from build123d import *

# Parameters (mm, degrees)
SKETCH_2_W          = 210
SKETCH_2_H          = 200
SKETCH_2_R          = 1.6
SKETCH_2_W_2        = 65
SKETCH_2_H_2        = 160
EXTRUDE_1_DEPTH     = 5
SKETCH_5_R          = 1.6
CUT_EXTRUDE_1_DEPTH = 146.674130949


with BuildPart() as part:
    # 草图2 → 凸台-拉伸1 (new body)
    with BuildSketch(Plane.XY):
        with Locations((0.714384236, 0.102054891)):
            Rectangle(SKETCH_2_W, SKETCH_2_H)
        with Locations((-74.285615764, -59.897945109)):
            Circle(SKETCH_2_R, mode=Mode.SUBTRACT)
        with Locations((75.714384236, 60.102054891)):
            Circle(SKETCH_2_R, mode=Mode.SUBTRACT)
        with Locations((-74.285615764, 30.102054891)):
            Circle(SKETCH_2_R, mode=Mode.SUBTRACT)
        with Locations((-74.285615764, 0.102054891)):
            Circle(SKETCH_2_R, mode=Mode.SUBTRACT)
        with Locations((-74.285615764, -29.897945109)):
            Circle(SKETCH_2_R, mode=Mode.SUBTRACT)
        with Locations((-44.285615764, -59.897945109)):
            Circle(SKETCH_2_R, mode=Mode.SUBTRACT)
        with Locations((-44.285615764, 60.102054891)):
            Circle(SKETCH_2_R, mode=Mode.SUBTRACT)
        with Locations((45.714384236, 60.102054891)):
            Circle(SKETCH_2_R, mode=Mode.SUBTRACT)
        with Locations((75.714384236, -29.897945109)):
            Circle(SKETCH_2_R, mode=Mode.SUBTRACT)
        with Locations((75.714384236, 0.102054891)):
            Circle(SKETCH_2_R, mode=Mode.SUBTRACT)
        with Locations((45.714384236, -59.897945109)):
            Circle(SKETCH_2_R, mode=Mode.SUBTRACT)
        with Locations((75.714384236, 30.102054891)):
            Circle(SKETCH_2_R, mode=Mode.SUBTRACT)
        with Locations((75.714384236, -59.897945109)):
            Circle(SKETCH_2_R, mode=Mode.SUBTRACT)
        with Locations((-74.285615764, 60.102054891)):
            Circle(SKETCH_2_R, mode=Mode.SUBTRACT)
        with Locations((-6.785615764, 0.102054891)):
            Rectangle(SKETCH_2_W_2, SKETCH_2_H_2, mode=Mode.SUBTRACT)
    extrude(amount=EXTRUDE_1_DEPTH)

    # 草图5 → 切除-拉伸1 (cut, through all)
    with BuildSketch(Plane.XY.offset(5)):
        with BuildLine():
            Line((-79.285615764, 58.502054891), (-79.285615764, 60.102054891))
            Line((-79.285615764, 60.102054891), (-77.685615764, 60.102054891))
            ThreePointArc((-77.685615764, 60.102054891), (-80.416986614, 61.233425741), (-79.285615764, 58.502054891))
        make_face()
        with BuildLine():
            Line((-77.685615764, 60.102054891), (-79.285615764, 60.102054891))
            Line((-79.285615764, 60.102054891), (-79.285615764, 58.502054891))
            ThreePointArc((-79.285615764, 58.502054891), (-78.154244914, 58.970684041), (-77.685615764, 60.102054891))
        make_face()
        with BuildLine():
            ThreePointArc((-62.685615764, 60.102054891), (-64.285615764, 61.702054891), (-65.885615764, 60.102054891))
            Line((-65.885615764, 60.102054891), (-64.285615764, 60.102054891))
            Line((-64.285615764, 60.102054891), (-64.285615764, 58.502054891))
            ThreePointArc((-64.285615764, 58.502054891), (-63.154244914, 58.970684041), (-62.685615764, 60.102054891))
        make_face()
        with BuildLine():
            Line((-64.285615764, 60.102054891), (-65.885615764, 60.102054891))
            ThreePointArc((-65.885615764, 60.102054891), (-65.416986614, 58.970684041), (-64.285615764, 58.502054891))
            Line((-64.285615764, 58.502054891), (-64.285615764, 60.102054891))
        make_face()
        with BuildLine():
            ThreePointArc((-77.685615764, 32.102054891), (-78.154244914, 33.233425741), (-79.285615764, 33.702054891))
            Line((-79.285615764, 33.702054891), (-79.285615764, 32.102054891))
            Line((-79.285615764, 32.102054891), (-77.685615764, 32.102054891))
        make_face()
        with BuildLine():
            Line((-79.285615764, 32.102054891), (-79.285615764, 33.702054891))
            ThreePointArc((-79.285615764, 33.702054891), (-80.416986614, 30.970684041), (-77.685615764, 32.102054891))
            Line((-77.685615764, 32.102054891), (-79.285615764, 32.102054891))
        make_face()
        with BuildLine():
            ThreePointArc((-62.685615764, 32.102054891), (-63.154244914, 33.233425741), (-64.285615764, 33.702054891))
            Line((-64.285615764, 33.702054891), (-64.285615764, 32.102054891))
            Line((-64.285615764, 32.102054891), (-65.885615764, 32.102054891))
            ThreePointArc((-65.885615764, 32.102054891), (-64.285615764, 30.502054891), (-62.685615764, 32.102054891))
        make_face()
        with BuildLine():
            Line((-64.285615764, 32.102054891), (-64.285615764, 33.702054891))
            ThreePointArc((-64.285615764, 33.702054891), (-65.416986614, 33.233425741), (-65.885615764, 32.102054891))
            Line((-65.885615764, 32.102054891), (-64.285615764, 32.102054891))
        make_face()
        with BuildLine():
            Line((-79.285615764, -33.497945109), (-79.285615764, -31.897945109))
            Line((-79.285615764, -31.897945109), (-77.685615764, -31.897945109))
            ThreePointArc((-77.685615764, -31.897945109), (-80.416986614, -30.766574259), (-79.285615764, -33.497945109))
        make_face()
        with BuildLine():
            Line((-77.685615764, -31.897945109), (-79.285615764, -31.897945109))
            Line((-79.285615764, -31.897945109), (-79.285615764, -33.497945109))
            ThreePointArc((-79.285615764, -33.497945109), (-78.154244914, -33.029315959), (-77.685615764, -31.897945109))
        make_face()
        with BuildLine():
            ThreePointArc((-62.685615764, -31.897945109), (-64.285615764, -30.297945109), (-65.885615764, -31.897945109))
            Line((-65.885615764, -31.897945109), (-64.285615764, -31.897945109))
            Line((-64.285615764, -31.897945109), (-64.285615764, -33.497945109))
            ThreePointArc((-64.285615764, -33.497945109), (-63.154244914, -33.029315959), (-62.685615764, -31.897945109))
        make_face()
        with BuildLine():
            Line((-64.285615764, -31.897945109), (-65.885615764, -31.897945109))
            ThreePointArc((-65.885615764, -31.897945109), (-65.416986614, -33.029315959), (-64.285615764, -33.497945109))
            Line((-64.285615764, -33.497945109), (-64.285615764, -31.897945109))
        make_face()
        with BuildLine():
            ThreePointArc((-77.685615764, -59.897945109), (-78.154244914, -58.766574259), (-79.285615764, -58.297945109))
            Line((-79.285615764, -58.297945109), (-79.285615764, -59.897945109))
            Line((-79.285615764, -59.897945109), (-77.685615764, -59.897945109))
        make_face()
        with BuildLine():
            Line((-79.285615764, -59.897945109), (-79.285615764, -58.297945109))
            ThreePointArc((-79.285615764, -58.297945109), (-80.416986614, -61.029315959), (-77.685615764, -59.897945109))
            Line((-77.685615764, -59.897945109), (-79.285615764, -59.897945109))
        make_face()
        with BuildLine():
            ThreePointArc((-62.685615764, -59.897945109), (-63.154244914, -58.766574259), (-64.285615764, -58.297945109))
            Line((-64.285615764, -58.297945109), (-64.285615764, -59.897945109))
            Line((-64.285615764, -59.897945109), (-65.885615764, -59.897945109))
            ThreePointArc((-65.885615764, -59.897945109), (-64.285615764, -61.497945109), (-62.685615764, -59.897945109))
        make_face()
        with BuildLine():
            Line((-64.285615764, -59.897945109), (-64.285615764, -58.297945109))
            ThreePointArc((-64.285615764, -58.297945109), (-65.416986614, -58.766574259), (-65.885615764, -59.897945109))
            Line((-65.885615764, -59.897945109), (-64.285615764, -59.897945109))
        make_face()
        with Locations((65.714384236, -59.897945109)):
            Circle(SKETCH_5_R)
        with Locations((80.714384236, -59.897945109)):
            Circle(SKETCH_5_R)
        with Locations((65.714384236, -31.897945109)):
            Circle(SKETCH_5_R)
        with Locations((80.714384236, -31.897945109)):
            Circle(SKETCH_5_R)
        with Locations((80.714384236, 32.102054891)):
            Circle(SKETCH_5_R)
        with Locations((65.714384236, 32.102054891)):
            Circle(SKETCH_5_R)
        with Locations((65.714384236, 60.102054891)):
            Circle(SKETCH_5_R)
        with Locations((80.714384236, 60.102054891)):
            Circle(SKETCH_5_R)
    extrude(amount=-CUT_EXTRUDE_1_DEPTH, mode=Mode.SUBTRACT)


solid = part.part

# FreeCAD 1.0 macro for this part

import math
import FreeCAD as App
import Part
import Sketcher
from FreeCAD import Vector
Q = App.Units.Quantity


def add_polygon(sketch, points):
    """Adds a closed chain of lines whose ends are joined by coincident constraints."""
    first, n = sketch.GeometryCount, len(points)
    for a, b in zip(points, points[1:] + points[:1]):
        sketch.addGeometry(Part.LineSegment(App.Vector(*a, 0), App.Vector(*b, 0)), False)
    for i in range(n):
        sketch.addConstraint(Sketcher.Constraint("Coincident", first + i, 2, first + (i + 1) % n, 1))

doc = App.newDocument("Part")
body = doc.addObject("PartDesign::Body", "Body")

# Sketch on XY plane
sketch1 = body.newObject("Sketcher::SketchObject", "Sketch")
sketch1.AttachmentSupport = (doc.getObject("XY_Plane"), [""])
sketch1.MapMode = "FlatFace"
add_polygon(sketch1, [(-104.3, 100.1), (-104.3, -99.9), (105.7, -99.9), (105.7, 100.1)])  # lines 0-3
sketch1.addGeometry(Part.Circle(Vector(-74.3, -59.9, 0), Vector(0, 0, 1), 1.6), False)  # 4
sketch1.addGeometry(Part.Circle(Vector(-44.3, -59.9, 0), Vector(0, 0, 1), 1.6), False)  # 5
sketch1.addGeometry(Part.Circle(Vector(-74.3, -29.9, 0), Vector(0, 0, 1), 1.6), False)  # 6
sketch1.addGeometry(Part.Circle(Vector(45.7, -59.9, 0), Vector(0, 0, 1), 1.6), False)  # 7
sketch1.addGeometry(Part.Circle(Vector(75.7, -59.9, 0), Vector(0, 0, 1), 1.6), False)  # 8
sketch1.addGeometry(Part.Circle(Vector(75.7, -29.9, 0), Vector(0, 0, 1), 1.6), False)  # 9
sketch1.addGeometry(Part.Circle(Vector(-74.3, 0.1, 0), Vector(0, 0, 1), 1.6), False)  # 10
sketch1.addGeometry(Part.Circle(Vector(-74.3, 30.1, 0), Vector(0, 0, 1), 1.6), False)  # 11
add_polygon(sketch1, [(25.7, -79.9), (-39.3, -79.9), (-39.3, 80.1), (25.7, 80.1)])  # lines 12-15
sketch1.addGeometry(Part.Circle(Vector(-74.3, 60.1, 0), Vector(0, 0, 1), 1.6), False)  # 16
sketch1.addGeometry(Part.Circle(Vector(-44.3, 60.1, 0), Vector(0, 0, 1), 1.6), False)  # 17
sketch1.addGeometry(Part.Circle(Vector(75.7, 0.1, 0), Vector(0, 0, 1), 1.6), False)  # 18
sketch1.addGeometry(Part.Circle(Vector(75.7, 30.1, 0), Vector(0, 0, 1), 1.6), False)  # 19
sketch1.addGeometry(Part.Circle(Vector(45.7, 60.1, 0), Vector(0, 0, 1), 1.6), False)  # 20
sketch1.addGeometry(Part.Circle(Vector(75.7, 60.1, 0), Vector(0, 0, 1), 1.6), False)  # 21
sketch1.addConstraint([
    Sketcher.Constraint("Vertical", 0),
    Sketcher.Constraint("Horizontal", 1),
    Sketcher.Constraint("Vertical", 2),
    Sketcher.Constraint("Horizontal", 3),
    Sketcher.Constraint("Horizontal", 12),
    Sketcher.Constraint("Vertical", 13),
    Sketcher.Constraint("Horizontal", 14),
    Sketcher.Constraint("Vertical", 15),
    Sketcher.Constraint("Equal", 4, 5),
    Sketcher.Constraint("Equal", 5, 6),
    Sketcher.Constraint("Equal", 6, 7),
    Sketcher.Constraint("Equal", 7, 8),
    Sketcher.Constraint("Equal", 8, 9),
    Sketcher.Constraint("Equal", 9, 10),
    Sketcher.Constraint("Equal", 10, 11),
    Sketcher.Constraint("Equal", 11, 16),
    Sketcher.Constraint("Equal", 16, 17),
    Sketcher.Constraint("Equal", 17, 18),
    Sketcher.Constraint("Equal", 18, 19),
    Sketcher.Constraint("Equal", 19, 20),
    Sketcher.Constraint("Equal", 20, 21),
    Sketcher.Constraint("Horizontal", 4, 3, 5, 3),
    Sketcher.Constraint("Horizontal", 5, 3, 7, 3),
    Sketcher.Constraint("Horizontal", 7, 3, 8, 3),
    Sketcher.Constraint("Horizontal", 6, 3, 9, 3),
    Sketcher.Constraint("Horizontal", 16, 3, 17, 3),
    Sketcher.Constraint("Horizontal", 10, 3, 18, 3),
    Sketcher.Constraint("Horizontal", 11, 3, 19, 3),
    Sketcher.Constraint("Horizontal", 17, 3, 20, 3),
    Sketcher.Constraint("Horizontal", 20, 3, 21, 3),
    Sketcher.Constraint("Vertical", 4, 3, 6, 3),
    Sketcher.Constraint("Vertical", 8, 3, 9, 3),
    Sketcher.Constraint("Vertical", 6, 3, 10, 3),
    Sketcher.Constraint("Vertical", 10, 3, 11, 3),
    Sketcher.Constraint("Vertical", 11, 3, 16, 3),
    Sketcher.Constraint("Vertical", 5, 3, 17, 3),
    Sketcher.Constraint("Vertical", 9, 3, 18, 3),
    Sketcher.Constraint("Vertical", 18, 3, 19, 3),
    Sketcher.Constraint("Vertical", 7, 3, 20, 3),
    Sketcher.Constraint("Vertical", 19, 3, 21, 3),
    Sketcher.Constraint("Diameter", 4, Q("3.2 mm")),
    Sketcher.Constraint("DistanceX", 1, 1, 1, 2, Q("210 mm")),
    Sketcher.Constraint("DistanceX", 12, 2, 12, 1, Q("65 mm")),
    Sketcher.Constraint("DistanceY", 0, 2, 0, 1, Q("200 mm")),
    Sketcher.Constraint("DistanceY", 13, 1, 13, 2, Q("160 mm")),
    Sketcher.Constraint("DistanceX", 4, 3, 5, 3, Q("30 mm")),
    Sketcher.Constraint("DistanceY", 4, 3, 6, 3, Q("30 mm")),
    Sketcher.Constraint("DistanceX", 5, 3, 7, 3, Q("90 mm")),
    Sketcher.Constraint("DistanceX", 7, 3, 8, 3, Q("30 mm")),
    Sketcher.Constraint("DistanceY", 6, 3, 10, 3, Q("30 mm")),
    Sketcher.Constraint("DistanceY", 10, 3, 11, 3, Q("30 mm")),
    Sketcher.Constraint("DistanceY", 11, 3, 16, 3, Q("30 mm")),
    Sketcher.Constraint("DistanceX", 0, 2, 4, 3, Q("30 mm")),
    Sketcher.Constraint("DistanceY", 0, 2, 4, 3, Q("40 mm")),
    Sketcher.Constraint("DistanceX", 5, 3, 12, 2, Q("5 mm")),
    Sketcher.Constraint("DistanceY", 12, 2, 5, 3, Q("20 mm")),
    Sketcher.Constraint("DistanceX", 4, 3, -1, 1, Q("74.285616 mm")),
    Sketcher.Constraint("DistanceY", 4, 3, -1, 1, Q("59.897945 mm")),
])
pad1 = body.newObject("PartDesign::Pad", "Pad")
pad1.Profile = sketch1
pad1.Length = 5

# Sketch on XY plane
sketch2 = body.newObject("Sketcher::SketchObject", "Sketch001")
sketch2.AttachmentSupport = (doc.getObject("XY_Plane"), [""])
sketch2.MapMode = "FlatFace"
sketch2.AttachmentOffset = App.Placement(Vector(0, 0, 5), App.Rotation())
sketch2.addGeometry([
    Part.ArcOfCircle(Part.Circle(Vector(-79.3, 60.1, 0), Vector(0, 0, 1), 1.6), math.radians(0), math.radians(270)),  # 0
    Part.ArcOfCircle(Part.Circle(Vector(-79.3, 60.1, 0), Vector(0, 0, 1), 1.6), math.radians(-90), math.radians(0)),  # 1
    Part.ArcOfCircle(Part.Circle(Vector(-64.3, 60.1, 0), Vector(0, 0, 1), 1.6), math.radians(0), math.radians(180)),  # 2
    Part.ArcOfCircle(Part.Circle(Vector(-64.3, 60.1, 0), Vector(0, 0, 1), 1.6), math.radians(180), math.radians(270)),  # 3
    Part.ArcOfCircle(Part.Circle(Vector(-64.3, 60.1, 0), Vector(0, 0, 1), 1.6), math.radians(-90), math.radians(0)),  # 4
    Part.ArcOfCircle(Part.Circle(Vector(-79.3, 32.1, 0), Vector(0, 0, 1), 1.6), math.radians(0), math.radians(90)),  # 5
    Part.ArcOfCircle(Part.Circle(Vector(-79.3, 32.1, 0), Vector(0, 0, 1), 1.6), math.radians(90), math.radians(360)),  # 6
    Part.ArcOfCircle(Part.Circle(Vector(-64.3, 32.1, 0), Vector(0, 0, 1), 1.6), math.radians(0), math.radians(90)),  # 7
    Part.ArcOfCircle(Part.Circle(Vector(-64.3, 32.1, 0), Vector(0, 0, 1), 1.6), math.radians(90), math.radians(180)),  # 8
    Part.ArcOfCircle(Part.Circle(Vector(-64.3, 32.1, 0), Vector(0, 0, 1), 1.6), math.radians(180), math.radians(360)),  # 9
    Part.ArcOfCircle(Part.Circle(Vector(-79.3, -31.9, 0), Vector(0, 0, 1), 1.6), math.radians(0), math.radians(270)),  # 10
    Part.ArcOfCircle(Part.Circle(Vector(-79.3, -31.9, 0), Vector(0, 0, 1), 1.6), math.radians(-90), math.radians(0)),  # 11
    Part.ArcOfCircle(Part.Circle(Vector(-64.3, -31.9, 0), Vector(0, 0, 1), 1.6), math.radians(0), math.radians(180)),  # 12
    Part.ArcOfCircle(Part.Circle(Vector(-64.3, -31.9, 0), Vector(0, 0, 1), 1.6), math.radians(180), math.radians(270)),  # 13
    Part.ArcOfCircle(Part.Circle(Vector(-64.3, -31.9, 0), Vector(0, 0, 1), 1.6), math.radians(-90), math.radians(0)),  # 14
    Part.ArcOfCircle(Part.Circle(Vector(-79.3, -59.9, 0), Vector(0, 0, 1), 1.6), math.radians(0), math.radians(90)),  # 15
    Part.ArcOfCircle(Part.Circle(Vector(-79.3, -59.9, 0), Vector(0, 0, 1), 1.6), math.radians(90), math.radians(360)),  # 16
    Part.ArcOfCircle(Part.Circle(Vector(-64.3, -59.9, 0), Vector(0, 0, 1), 1.6), math.radians(0), math.radians(90)),  # 17
    Part.ArcOfCircle(Part.Circle(Vector(-64.3, -59.9, 0), Vector(0, 0, 1), 1.6), math.radians(90), math.radians(180)),  # 18
    Part.ArcOfCircle(Part.Circle(Vector(-64.3, -59.9, 0), Vector(0, 0, 1), 1.6), math.radians(180), math.radians(360)),  # 19
    Part.Circle(Vector(65.7, -59.9, 0), Vector(0, 0, 1), 1.6),  # 20
    Part.Circle(Vector(80.7, -59.9, 0), Vector(0, 0, 1), 1.6),  # 21
    Part.Circle(Vector(65.7, -31.9, 0), Vector(0, 0, 1), 1.6),  # 22
    Part.Circle(Vector(80.7, -31.9, 0), Vector(0, 0, 1), 1.6),  # 23
    Part.Circle(Vector(80.7, 32.1, 0), Vector(0, 0, 1), 1.6),  # 24
    Part.Circle(Vector(65.7, 32.1, 0), Vector(0, 0, 1), 1.6),  # 25
    Part.Circle(Vector(65.7, 60.1, 0), Vector(0, 0, 1), 1.6),  # 26
    Part.Circle(Vector(80.7, 60.1, 0), Vector(0, 0, 1), 1.6),  # 27
], False)
sketch2.addConstraint([
    Sketcher.Constraint("Tangent", 0, 1, 1, 2),
    Sketcher.Constraint("Coincident", 1, 1, 0, 2),
    Sketcher.Constraint("Tangent", 2, 2, 3, 1),
    Sketcher.Constraint("Tangent", 3, 2, 4, 1),
    Sketcher.Constraint("Tangent", 4, 2, 2, 1),
    Sketcher.Constraint("Tangent", 5, 1, 6, 2),
    Sketcher.Constraint("Coincident", 6, 1, 5, 2),
    Sketcher.Constraint("Tangent", 7, 2, 8, 1),
    Sketcher.Constraint("Tangent", 8, 2, 9, 1),
    Sketcher.Constraint("Tangent", 9, 2, 7, 1),
    Sketcher.Constraint("Tangent", 10, 1, 11, 2),
    Sketcher.Constraint("Coincident", 11, 1, 10, 2),
    Sketcher.Constraint("Tangent", 12, 2, 13, 1),
    Sketcher.Constraint("Tangent", 13, 2, 14, 1),
    Sketcher.Constraint("Tangent", 14, 2, 12, 1),
    Sketcher.Constraint("Tangent", 15, 1, 16, 2),
    Sketcher.Constraint("Coincident", 16, 1, 15, 2),
    Sketcher.Constraint("Tangent", 17, 2, 18, 1),
    Sketcher.Constraint("Tangent", 18, 2, 19, 1),
    Sketcher.Constraint("Tangent", 19, 2, 17, 1),
    Sketcher.Constraint("Equal", 1, 2),
    Sketcher.Constraint("Equal", 4, 5),
    Sketcher.Constraint("Equal", 6, 7),
    Sketcher.Constraint("Equal", 9, 10),
    Sketcher.Constraint("Equal", 11, 12),
    Sketcher.Constraint("Equal", 14, 15),
    Sketcher.Constraint("Equal", 16, 17),
    Sketcher.Constraint("Equal", 19, 20),
    Sketcher.Constraint("Equal", 20, 21),
    Sketcher.Constraint("Equal", 21, 22),
    Sketcher.Constraint("Equal", 22, 23),
    Sketcher.Constraint("Equal", 23, 24),
    Sketcher.Constraint("Equal", 24, 25),
    Sketcher.Constraint("Equal", 25, 26),
    Sketcher.Constraint("Equal", 26, 27),
    Sketcher.Constraint("Horizontal", 1, 3, 2, 3),
    Sketcher.Constraint("Horizontal", 6, 3, 7, 3),
    Sketcher.Constraint("Horizontal", 11, 3, 12, 3),
    Sketcher.Constraint("Horizontal", 16, 3, 17, 3),
    Sketcher.Constraint("Horizontal", 19, 3, 20, 3),
    Sketcher.Constraint("Horizontal", 20, 3, 21, 3),
    Sketcher.Constraint("Horizontal", 14, 3, 22, 3),
    Sketcher.Constraint("Horizontal", 22, 3, 23, 3),
    Sketcher.Constraint("Horizontal", 9, 3, 24, 3),
    Sketcher.Constraint("Horizontal", 24, 3, 25, 3),
    Sketcher.Constraint("Horizontal", 4, 3, 26, 3),
    Sketcher.Constraint("Horizontal", 26, 3, 27, 3),
    Sketcher.Constraint("Horizontal", 27, 3, 0, 1),
    Sketcher.Constraint("Horizontal", 0, 1, 2, 2),
    Sketcher.Constraint("Horizontal", 2, 2, 4, 2),
    Sketcher.Constraint("Horizontal", 25, 3, 5, 1),
    Sketcher.Constraint("Horizontal", 5, 1, 8, 2),
    Sketcher.Constraint("Horizontal", 8, 2, 9, 2),
    Sketcher.Constraint("Horizontal", 23, 3, 10, 1),
    Sketcher.Constraint("Horizontal", 10, 1, 12, 2),
    Sketcher.Constraint("Horizontal", 12, 2, 14, 2),
    Sketcher.Constraint("Horizontal", 21, 3, 15, 1),
    Sketcher.Constraint("Horizontal", 15, 1, 18, 2),
    Sketcher.Constraint("Horizontal", 18, 2, 19, 2),
    Sketcher.Constraint("Vertical", 1, 3, 5, 3),
    Sketcher.Constraint("Vertical", 4, 3, 7, 3),
    Sketcher.Constraint("Vertical", 6, 3, 10, 3),
    Sketcher.Constraint("Vertical", 9, 3, 12, 3),
    Sketcher.Constraint("Vertical", 11, 3, 15, 3),
    Sketcher.Constraint("Vertical", 14, 3, 17, 3),
    Sketcher.Constraint("Vertical", 20, 3, 22, 3),
    Sketcher.Constraint("Vertical", 21, 3, 23, 3),
    Sketcher.Constraint("Vertical", 23, 3, 24, 3),
    Sketcher.Constraint("Vertical", 22, 3, 25, 3),
    Sketcher.Constraint("Vertical", 25, 3, 26, 3),
    Sketcher.Constraint("Vertical", 24, 3, 27, 3),
    Sketcher.Constraint("Vertical", 16, 3, 1, 1),
    Sketcher.Constraint("Vertical", 19, 3, 3, 2),
    Sketcher.Constraint("Vertical", 1, 1, 6, 1),
    Sketcher.Constraint("Vertical", 3, 2, 7, 2),
    Sketcher.Constraint("Vertical", 6, 1, 11, 1),
    Sketcher.Constraint("Vertical", 7, 2, 13, 2),
    Sketcher.Constraint("Vertical", 11, 1, 16, 1),
    Sketcher.Constraint("Vertical", 13, 2, 17, 2),
    Sketcher.Constraint("Diameter", 20, Q("3.2 mm")),
    Sketcher.Constraint("DistanceX", 0, 3, 2, 3, Q("15 mm")),
    Sketcher.Constraint("DistanceY", 5, 3, 0, 3, Q("28 mm")),
    Sketcher.Constraint("DistanceY", 10, 3, 5, 3, Q("64 mm")),
    Sketcher.Constraint("DistanceY", 15, 3, 10, 3, Q("28 mm")),
    Sketcher.Constraint("DistanceX", 17, 3, 20, 3, Q("130 mm")),
    Sketcher.Constraint("DistanceX", 20, 3, 21, 3, Q("15 mm")),
    Sketcher.Constraint("DistanceX", 0, 3, -1, 1, Q("79.285616 mm")),
    Sketcher.Constraint("DistanceY", -1, 1, 0, 3, Q("60.102055 mm")),
])
pocket1 = body.newObject("PartDesign::Pocket", "Pocket")
pocket1.Profile = sketch2
pocket1.Type = "ThroughAll"

doc.recompute()
